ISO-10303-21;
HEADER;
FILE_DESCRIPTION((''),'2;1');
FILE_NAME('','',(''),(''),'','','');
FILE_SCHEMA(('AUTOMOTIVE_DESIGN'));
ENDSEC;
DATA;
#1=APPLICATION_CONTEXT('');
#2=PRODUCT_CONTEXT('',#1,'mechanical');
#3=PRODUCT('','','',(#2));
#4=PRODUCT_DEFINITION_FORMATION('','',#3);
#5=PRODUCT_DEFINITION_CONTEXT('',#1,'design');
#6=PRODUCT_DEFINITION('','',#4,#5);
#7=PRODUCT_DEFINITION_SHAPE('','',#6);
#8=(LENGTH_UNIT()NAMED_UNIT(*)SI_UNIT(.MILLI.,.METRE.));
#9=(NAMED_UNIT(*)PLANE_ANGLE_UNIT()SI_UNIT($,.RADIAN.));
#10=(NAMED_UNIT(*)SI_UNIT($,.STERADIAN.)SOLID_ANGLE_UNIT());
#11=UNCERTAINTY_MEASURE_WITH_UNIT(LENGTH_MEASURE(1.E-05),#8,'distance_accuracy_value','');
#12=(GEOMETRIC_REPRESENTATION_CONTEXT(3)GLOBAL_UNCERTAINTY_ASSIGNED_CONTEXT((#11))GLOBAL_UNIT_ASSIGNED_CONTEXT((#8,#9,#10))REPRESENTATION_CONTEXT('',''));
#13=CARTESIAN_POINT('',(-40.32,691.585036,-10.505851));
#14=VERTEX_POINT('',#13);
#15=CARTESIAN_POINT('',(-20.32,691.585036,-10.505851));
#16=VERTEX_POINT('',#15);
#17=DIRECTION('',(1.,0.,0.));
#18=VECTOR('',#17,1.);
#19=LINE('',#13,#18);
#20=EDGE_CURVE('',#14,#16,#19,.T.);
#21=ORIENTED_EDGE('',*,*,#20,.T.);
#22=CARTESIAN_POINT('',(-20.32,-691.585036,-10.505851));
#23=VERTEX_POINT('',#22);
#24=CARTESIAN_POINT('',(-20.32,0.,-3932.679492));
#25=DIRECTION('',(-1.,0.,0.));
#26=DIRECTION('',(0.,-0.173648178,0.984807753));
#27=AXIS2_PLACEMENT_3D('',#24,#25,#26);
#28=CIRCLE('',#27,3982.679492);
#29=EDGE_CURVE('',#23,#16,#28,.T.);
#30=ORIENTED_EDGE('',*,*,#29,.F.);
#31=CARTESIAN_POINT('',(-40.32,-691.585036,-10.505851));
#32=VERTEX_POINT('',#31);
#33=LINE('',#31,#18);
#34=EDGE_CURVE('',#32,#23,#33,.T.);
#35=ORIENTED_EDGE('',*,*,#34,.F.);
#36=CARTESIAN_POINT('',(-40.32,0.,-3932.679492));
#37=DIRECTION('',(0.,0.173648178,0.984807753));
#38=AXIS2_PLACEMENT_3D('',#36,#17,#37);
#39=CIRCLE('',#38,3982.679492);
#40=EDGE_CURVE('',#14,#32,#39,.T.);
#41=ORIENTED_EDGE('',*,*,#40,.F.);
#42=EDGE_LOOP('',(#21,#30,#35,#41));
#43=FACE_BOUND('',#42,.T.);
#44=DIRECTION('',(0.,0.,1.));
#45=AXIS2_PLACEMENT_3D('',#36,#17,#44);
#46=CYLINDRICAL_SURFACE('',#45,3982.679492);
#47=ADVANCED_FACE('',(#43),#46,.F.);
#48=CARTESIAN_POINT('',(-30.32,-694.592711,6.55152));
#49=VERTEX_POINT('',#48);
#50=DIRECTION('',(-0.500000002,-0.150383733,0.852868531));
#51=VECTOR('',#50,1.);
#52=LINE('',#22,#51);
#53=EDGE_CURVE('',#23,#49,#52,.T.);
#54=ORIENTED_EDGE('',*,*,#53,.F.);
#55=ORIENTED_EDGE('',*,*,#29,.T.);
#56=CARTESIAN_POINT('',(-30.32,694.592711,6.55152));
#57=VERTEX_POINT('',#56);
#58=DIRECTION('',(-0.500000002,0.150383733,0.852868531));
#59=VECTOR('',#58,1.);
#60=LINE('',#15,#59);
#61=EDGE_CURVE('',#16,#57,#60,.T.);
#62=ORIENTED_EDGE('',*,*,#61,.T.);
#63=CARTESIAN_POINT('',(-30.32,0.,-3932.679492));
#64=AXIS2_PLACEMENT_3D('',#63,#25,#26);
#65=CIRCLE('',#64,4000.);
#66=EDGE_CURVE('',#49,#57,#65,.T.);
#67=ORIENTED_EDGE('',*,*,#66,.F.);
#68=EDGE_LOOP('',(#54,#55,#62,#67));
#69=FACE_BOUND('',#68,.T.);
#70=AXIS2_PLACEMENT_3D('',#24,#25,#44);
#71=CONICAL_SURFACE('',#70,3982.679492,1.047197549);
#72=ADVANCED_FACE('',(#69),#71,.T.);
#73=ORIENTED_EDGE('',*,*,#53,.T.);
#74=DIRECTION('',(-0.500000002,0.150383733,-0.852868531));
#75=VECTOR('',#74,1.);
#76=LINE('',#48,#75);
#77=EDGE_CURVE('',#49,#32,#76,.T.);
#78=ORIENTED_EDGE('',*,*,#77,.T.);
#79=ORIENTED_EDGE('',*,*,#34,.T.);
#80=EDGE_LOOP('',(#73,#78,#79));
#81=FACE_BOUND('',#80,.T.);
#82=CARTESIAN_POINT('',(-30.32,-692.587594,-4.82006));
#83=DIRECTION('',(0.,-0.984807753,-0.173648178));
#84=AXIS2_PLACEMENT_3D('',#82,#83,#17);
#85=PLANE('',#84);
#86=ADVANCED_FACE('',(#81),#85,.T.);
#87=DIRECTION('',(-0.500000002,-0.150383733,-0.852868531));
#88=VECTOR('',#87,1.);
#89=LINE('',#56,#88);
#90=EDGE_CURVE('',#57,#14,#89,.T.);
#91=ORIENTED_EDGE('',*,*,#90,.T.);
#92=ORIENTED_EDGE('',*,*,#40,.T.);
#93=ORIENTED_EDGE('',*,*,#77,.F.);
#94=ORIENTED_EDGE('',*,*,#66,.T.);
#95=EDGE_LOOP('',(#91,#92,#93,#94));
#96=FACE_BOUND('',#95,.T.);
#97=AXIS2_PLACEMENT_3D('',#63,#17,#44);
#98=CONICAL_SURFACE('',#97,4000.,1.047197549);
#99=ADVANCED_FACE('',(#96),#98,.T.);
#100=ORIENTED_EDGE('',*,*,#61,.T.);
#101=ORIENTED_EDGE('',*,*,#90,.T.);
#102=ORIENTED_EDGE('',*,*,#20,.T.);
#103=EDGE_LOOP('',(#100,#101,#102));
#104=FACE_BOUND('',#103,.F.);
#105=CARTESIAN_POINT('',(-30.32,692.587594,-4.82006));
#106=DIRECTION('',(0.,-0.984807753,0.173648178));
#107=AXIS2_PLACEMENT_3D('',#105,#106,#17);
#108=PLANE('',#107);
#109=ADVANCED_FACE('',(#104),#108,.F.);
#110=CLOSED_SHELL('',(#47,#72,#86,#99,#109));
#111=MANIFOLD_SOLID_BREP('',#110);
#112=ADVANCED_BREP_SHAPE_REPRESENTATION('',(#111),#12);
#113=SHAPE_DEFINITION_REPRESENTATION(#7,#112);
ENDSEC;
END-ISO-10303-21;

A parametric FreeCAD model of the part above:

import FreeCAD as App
import Part
import Sketcher
Q = App.Units.Quantity


def add_polygon(sketch, points):
    """Adds a closed chain of lines whose ends are joined by coincident constraints."""
    first, n = sketch.GeometryCount, len(points)
    for a, b in zip(points, points[1:] + points[:1]):
        sketch.addGeometry(Part.LineSegment(App.Vector(*a, 0), App.Vector(*b, 0)), False)
    for i in range(n):
        sketch.addConstraint(Sketcher.Constraint("Coincident", first + i, 2, first + (i + 1) % n, 1))

doc = App.newDocument("Part")
body = doc.addObject("PartDesign::Body", "Body")

sketch1 = body.newObject("Sketcher::SketchObject", "Sketch")
sketch1.AttachmentSupport = (doc.getObject("XZ_Plane"), [""])
sketch1.MapMode = "FlatFace"
add_polygon(sketch1, [(-30, 67), (-40, 50), (-20, 50)])
sketch1.addGeometry(Part.LineSegment(App.Vector(-40, -3933, 0), App.Vector(-20, -3933, 0)), True)
sketch1.addConstraint([
    Sketcher.Constraint("Horizontal", 1),
    Sketcher.Constraint("Horizontal", 3),
    Sketcher.Constraint("Vertical", 0, 2, 3, 1),
    Sketcher.Constraint("Vertical", 1, 2, 3, 2),
    Sketcher.Constraint("Equal", 0, 2),
    Sketcher.Constraint("DistanceX", 1, 1, 1, 2, 20.0),
    Sketcher.Constraint("Angle", 0, Q("-120 deg")),
    Sketcher.Constraint("DistanceY", -1, 1, 0, 2, 50.0),
    Sketcher.Constraint("DistanceY", 3, 1, 2, 2, 4000.0),
    Sketcher.Constraint("DistanceX", 0, 2, -1, 1, 40.32),
])
revolution = body.newObject("PartDesign::Revolution", "Revolution")
revolution.Profile = sketch1
revolution.ReferenceAxis = (sketch1, ["Axis0"])
revolution.Angle = 10

sketch2 = body.newObject("Sketcher::SketchObject", "Sketch001")
sketch2.AttachmentSupport = (doc.getObject("XZ_Plane"), [""])
sketch2.MapMode = "FlatFace"
add_polygon(sketch2, [(-30, 67), (-40, 50), (-20, 50)])
sketch2.addGeometry(Part.LineSegment(App.Vector(-20, -3933, 0), App.Vector(-40, -3933, 0)), True)
sketch2.addConstraint([
    Sketcher.Constraint("Horizontal", 1),
    Sketcher.Constraint("Horizontal", 3),
    Sketcher.Constraint("Vertical", 1, 2, 3, 1),
    Sketcher.Constraint("Vertical", 0, 2, 3, 2),
    Sketcher.Constraint("Equal", 0, 2),
    Sketcher.Constraint("DistanceX", 1, 1, 1, 2, 20.0),
    Sketcher.Constraint("Angle", 0, Q("-120 deg")),
    Sketcher.Constraint("DistanceY", -1, 1, 0, 2, 50.0),
    Sketcher.Constraint("DistanceY", 3, 1, 2, 2, 4000.0),
    Sketcher.Constraint("DistanceX", 0, 2, -1, 1, 40.32),
])
revolution2 = body.newObject("PartDesign::Revolution", "Revolution001")
revolution2.Profile = sketch2
revolution2.ReferenceAxis = (sketch2, ["Axis0"])
revolution2.Angle = 10

doc.recompute()
